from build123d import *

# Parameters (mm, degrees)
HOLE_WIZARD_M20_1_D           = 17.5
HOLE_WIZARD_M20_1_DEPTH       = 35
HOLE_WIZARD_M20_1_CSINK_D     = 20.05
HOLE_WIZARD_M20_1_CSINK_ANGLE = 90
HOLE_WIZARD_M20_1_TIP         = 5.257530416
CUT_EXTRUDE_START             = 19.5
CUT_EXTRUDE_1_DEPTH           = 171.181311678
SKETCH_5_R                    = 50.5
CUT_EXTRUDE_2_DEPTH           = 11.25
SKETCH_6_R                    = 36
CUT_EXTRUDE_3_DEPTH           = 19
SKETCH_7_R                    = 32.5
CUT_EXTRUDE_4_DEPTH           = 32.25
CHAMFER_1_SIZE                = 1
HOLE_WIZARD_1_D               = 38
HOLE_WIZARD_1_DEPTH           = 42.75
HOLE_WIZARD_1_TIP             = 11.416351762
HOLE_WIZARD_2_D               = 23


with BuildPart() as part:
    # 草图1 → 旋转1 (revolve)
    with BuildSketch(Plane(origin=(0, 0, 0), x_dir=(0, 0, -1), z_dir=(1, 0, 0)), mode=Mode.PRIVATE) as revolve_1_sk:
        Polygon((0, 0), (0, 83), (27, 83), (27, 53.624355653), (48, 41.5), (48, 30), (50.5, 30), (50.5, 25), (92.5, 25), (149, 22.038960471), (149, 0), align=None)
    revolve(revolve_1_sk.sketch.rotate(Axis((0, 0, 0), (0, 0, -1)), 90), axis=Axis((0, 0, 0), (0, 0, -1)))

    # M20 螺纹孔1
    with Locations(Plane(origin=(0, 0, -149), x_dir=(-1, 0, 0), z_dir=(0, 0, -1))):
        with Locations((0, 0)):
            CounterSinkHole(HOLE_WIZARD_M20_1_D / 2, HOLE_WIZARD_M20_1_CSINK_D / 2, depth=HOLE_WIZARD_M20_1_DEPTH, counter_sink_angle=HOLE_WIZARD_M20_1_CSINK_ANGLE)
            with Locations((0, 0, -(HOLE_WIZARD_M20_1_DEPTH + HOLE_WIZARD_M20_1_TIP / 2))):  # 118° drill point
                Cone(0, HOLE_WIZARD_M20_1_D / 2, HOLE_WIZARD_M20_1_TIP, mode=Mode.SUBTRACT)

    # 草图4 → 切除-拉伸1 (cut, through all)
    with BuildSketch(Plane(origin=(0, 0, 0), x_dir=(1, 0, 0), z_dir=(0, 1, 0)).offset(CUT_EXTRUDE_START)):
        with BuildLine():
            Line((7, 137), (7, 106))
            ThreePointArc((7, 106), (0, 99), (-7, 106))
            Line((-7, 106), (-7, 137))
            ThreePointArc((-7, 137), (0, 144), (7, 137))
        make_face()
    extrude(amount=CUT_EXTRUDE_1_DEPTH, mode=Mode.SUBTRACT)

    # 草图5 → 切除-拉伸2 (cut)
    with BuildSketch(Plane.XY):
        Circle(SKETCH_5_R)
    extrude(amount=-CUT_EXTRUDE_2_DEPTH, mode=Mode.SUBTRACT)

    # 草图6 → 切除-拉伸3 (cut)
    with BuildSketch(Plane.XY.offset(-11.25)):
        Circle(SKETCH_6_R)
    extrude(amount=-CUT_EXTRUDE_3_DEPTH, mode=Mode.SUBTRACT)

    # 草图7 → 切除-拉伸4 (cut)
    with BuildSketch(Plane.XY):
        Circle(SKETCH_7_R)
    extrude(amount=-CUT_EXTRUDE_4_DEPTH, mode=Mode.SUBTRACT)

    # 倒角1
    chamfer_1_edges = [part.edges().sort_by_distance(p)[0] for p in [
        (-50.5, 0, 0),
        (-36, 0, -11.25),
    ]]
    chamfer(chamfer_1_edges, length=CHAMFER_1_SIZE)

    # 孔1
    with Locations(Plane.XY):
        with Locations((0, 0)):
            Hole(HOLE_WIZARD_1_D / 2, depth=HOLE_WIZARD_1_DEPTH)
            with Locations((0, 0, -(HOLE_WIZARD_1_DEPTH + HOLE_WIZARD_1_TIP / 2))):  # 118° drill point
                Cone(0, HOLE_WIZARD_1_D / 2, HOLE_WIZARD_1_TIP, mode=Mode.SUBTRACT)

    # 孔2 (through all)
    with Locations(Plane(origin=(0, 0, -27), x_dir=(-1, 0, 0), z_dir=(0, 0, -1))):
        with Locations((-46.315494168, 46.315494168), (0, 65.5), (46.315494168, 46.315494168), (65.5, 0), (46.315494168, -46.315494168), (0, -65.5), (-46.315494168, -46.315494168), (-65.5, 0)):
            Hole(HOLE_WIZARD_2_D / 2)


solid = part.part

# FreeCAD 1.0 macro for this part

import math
import FreeCAD as App
import Part
import Sketcher
Q = App.Units.Quantity


def edges_at(feature, points):
    """Names of the edges that pass closest to the given points."""
    edges = feature.Shape.Edges
    near = lambda p: min(range(len(edges)), key=lambda i: edges[i].distToShape(Part.Vertex(*p))[0])
    return sorted({f"Edge{near(p) + 1}" for p in points})

doc = App.newDocument("Part")
params = doc.addObject("Spreadsheet::Sheet", "Params")
for row, (alias, value) in enumerate([
    ("sketch1_width", "83 mm"),
    ("sketch1_width2", "5 mm"),
    ("sketch1_height", "149 mm"),
    ("sketch1_height2", "42 mm"),
    ("sketch1_height3", "27 mm"),
    ("revolution_angle", "360 deg"),
    ("sketch2_diameter", "17.5 mm"),
    ("hole_diameter", "17.5 mm"),
    ("hole_depth", "35 mm"),
    ("hole_csink_diameter", "20.05 mm"),
    ("sketch3_radius", "7 mm"),
    ("sketch3_height", "31 mm"),
    ("sketch4_diameter", "101 mm"),
    ("pocket2_length", "11.25 mm"),
    ("sketch5_diameter", "72 mm"),
    ("pocket3_length", "19 mm"),
    ("sketch6_diameter", "65 mm"),
    ("pocket4_length", "32.25 mm"),
    ("chamfer_size", "1 mm"),
    ("sketch7_diameter", "38 mm"),
    ("hole2_diameter", "38 mm"),
    ("hole2_depth", "42.75 mm"),
    ("sketch8_diameter", "23 mm"),
    ("hole3_diameter", "23 mm"),
], start=1):
    params.set(f"A{row}", alias)
    params.set(f"B{row}", "=" + value)
    params.setAlias(f"B{row}", alias)

body = doc.addObject("PartDesign::Body", "Body")

# Sketch on YZ plane
sketch1 = doc.addObject("Sketcher::SketchObject", "Sketch")
body.addObject(sketch1)
sketch1.AttachmentSupport = (doc.YZ_Plane, [""])
sketch1.MapMode = "FlatFace"
sketch1.addGeometry([
    Part.LineSegment(App.Vector(83, 0, 0), App.Vector(0, 0, 0)),  # 0
    Part.LineSegment(App.Vector(0, 0, 0), App.Vector(0, -149, 0)),  # 1
    Part.LineSegment(App.Vector(0, -149, 0), App.Vector(22, -149, 0)),  # 2
    Part.LineSegment(App.Vector(22, -149, 0), App.Vector(25, -92.5, 0)),  # 3
    Part.LineSegment(App.Vector(25, -92.5, 0), App.Vector(25, -50.5, 0)),  # 4
    Part.LineSegment(App.Vector(25, -50.5, 0), App.Vector(30, -50.5, 0)),  # 5
    Part.LineSegment(App.Vector(30, -50.5, 0), App.Vector(30, -48, 0)),  # 6
    Part.LineSegment(App.Vector(30, -48, 0), App.Vector(41.5, -48, 0)),  # 7
    Part.LineSegment(App.Vector(41.5, -48, 0), App.Vector(53.6, -27, 0)),  # 8
    Part.LineSegment(App.Vector(53.6, -27, 0), App.Vector(83, -27, 0)),  # 9
    Part.LineSegment(App.Vector(83, -27, 0), App.Vector(83, 0, 0)),  # 10
], False)
sketch1.addConstraint([
    Sketcher.Constraint("Coincident", 0, 2, 1, 1),
    Sketcher.Constraint("Coincident", 1, 2, 2, 1),
    Sketcher.Constraint("Coincident", 2, 2, 3, 1),
    Sketcher.Constraint("Coincident", 3, 2, 4, 1),
    Sketcher.Constraint("Coincident", 4, 2, 5, 1),
    Sketcher.Constraint("Coincident", 5, 2, 6, 1),
    Sketcher.Constraint("Coincident", 6, 2, 7, 1),
    Sketcher.Constraint("Coincident", 7, 2, 8, 1),
    Sketcher.Constraint("Coincident", 8, 2, 9, 1),
    Sketcher.Constraint("Coincident", 9, 2, 10, 1),
    Sketcher.Constraint("Coincident", 10, 2, 0, 1),
    Sketcher.Constraint("Horizontal", 0),
    Sketcher.Constraint("Vertical", 1),
    Sketcher.Constraint("Horizontal", 2),
    Sketcher.Constraint("Vertical", 4),
    Sketcher.Constraint("Horizontal", 5),
    Sketcher.Constraint("Vertical", 6),
    Sketcher.Constraint("Horizontal", 7),
    Sketcher.Constraint("Horizontal", 9),
    Sketcher.Constraint("Vertical", 10),
    Sketcher.Constraint("Coincident", 0, 2, -1, 1),
    Sketcher.Constraint("DistanceX", 0, 2, 0, 1, 83.0),
    Sketcher.Constraint("DistanceX", 5, 1, 5, 2, 5.0),
    Sketcher.Constraint("DistanceY", 1, 2, 1, 1, 149.0),
    Sketcher.Constraint("DistanceY", 4, 1, 4, 2, 42.0),
    Sketcher.Constraint("DistanceY", 10, 1, 10, 2, 27.0),
    Sketcher.Constraint("Angle", 3, Q("87 deg")),
    Sketcher.Constraint("Angle", 8, Q("60 deg")),
    Sketcher.Constraint("DistanceX", 7, 1, 7, 2, 11.5),
    Sketcher.Constraint("DistanceY", 6, 1, 6, 2, 2.5),
    Sketcher.Constraint("DistanceX", -1, 1, 3, 2, 25.0),
    Sketcher.Constraint("DistanceY", 6, 2, -1, 1, 48.0),
])
sketch1.setExpression("Constraints[21]", "Params.sketch1_width")
sketch1.setExpression("Constraints[22]", "Params.sketch1_width2")
sketch1.setExpression("Constraints[23]", "Params.sketch1_height")
sketch1.setExpression("Constraints[24]", "Params.sketch1_height2")
sketch1.setExpression("Constraints[25]", "Params.sketch1_height3")
revolution = doc.addObject("PartDesign::Revolution", "Revolution")
body.addObject(revolution)
revolution.Profile = sketch1
revolution.ReferenceAxis = (sketch1, ["V_Axis"])
revolution.setExpression("Angle", "Params.revolution_angle")

# Sketch on XY plane
sketch2 = doc.addObject("Sketcher::SketchObject", "Sketch001")
body.addObject(sketch2)
sketch2.AttachmentSupport = (doc.XY_Plane, [""])
sketch2.MapMode = "FlatFace"
sketch2.AttachmentOffset = App.Placement(App.Vector(0, 0, -149), App.Rotation())
sketch2.addGeometry(Part.Circle(App.Vector(0, 0, 0), App.Vector(0, 0, 1), 9), False)
sketch2.addConstraint([
    Sketcher.Constraint("Coincident", 0, 3, -1, 1),
    Sketcher.Constraint("Diameter", 0, 17.5),
])
sketch2.setExpression("Constraints[1]", "Params.sketch2_diameter")
doc.recompute()
hole = doc.addObject("PartDesign::Hole", "Hole")
body.addObject(hole)
hole.Profile = sketch2
hole.ThreadType = "None"
hole.setExpression("Diameter", "Params.hole_diameter")
hole.DepthType = "Dimension"
hole.setExpression("Depth", "Params.hole_depth")
hole.DrillPoint = "Angled"
hole.DrillPointAngle = 118
hole.HoleCutType = "Countersink"
hole.setExpression("HoleCutDiameter", "Params.hole_csink_diameter")
hole.HoleCutCountersinkAngle = 90
hole.Reversed = True

# Sketch on XZ plane
sketch3 = doc.addObject("Sketcher::SketchObject", "Sketch002")
body.addObject(sketch3)
sketch3.AttachmentSupport = (doc.XZ_Plane, [""])
sketch3.MapMode = "FlatFace"
sketch3.AttachmentOffset = App.Placement(App.Vector(0, 0, -19.5), App.Rotation())
sketch3.addGeometry([
    Part.LineSegment(App.Vector(7, -106, 0), App.Vector(7, -137, 0)),
    Part.ArcOfCircle(Part.Circle(App.Vector(0, -137, 0), App.Vector(0, 0, 1), 7), math.radians(180), math.radians(360)),
    Part.LineSegment(App.Vector(-7, -137, 0), App.Vector(-7, -106, 0)),
    Part.ArcOfCircle(Part.Circle(App.Vector(0, -106, 0), App.Vector(0, 0, 1), 7), math.radians(0), math.radians(180)),
], False)
sketch3.addConstraint([
    Sketcher.Constraint("Tangent", 0, 2, 1, 2),
    Sketcher.Constraint("Tangent", 1, 1, 2, 1),
    Sketcher.Constraint("Tangent", 2, 2, 3, 2),
    Sketcher.Constraint("Tangent", 3, 1, 0, 1),
    Sketcher.Constraint("Vertical", 0),
    Sketcher.Constraint("Vertical", 2),
    Sketcher.Constraint("PointOnObject", 1, 3, -2),
    Sketcher.Constraint("Radius", 1, 7.0),
    Sketcher.Constraint("DistanceY", 0, 2, 0, 1, 31.0),
    Sketcher.Constraint("DistanceY", 1, 3, -1, 1, 137.0),
])
sketch3.setExpression("Constraints[7]", "Params.sketch3_radius")
sketch3.setExpression("Constraints[8]", "Params.sketch3_height")
pocket1 = doc.addObject("PartDesign::Pocket", "Pocket")
body.addObject(pocket1)
pocket1.Profile = sketch3
pocket1.Type = "ThroughAll"

# Sketch on XY plane
sketch4 = doc.addObject("Sketcher::SketchObject", "Sketch003")
body.addObject(sketch4)
sketch4.AttachmentSupport = (doc.XY_Plane, [""])
sketch4.MapMode = "FlatFace"
sketch4.addGeometry(Part.Circle(App.Vector(0, 0, 0), App.Vector(0, 0, 1), 50), False)
sketch4.addConstraint([
    Sketcher.Constraint("Coincident", 0, 3, -1, 1),
    Sketcher.Constraint("Diameter", 0, 101.0),
])
sketch4.setExpression("Constraints[1]", "Params.sketch4_diameter")
pocket2 = doc.addObject("PartDesign::Pocket", "Pocket001")
body.addObject(pocket2)
pocket2.Profile = sketch4
pocket2.setExpression("Length", "Params.pocket2_length")

# Sketch on XY plane
sketch5 = doc.addObject("Sketcher::SketchObject", "Sketch004")
body.addObject(sketch5)
sketch5.AttachmentSupport = (doc.XY_Plane, [""])
sketch5.MapMode = "FlatFace"
sketch5.AttachmentOffset = App.Placement(App.Vector(0, 0, -11.25), App.Rotation())
sketch5.addGeometry(Part.Circle(App.Vector(0, 0, 0), App.Vector(0, 0, 1), 36), False)
sketch5.addConstraint([
    Sketcher.Constraint("Coincident", 0, 3, -1, 1),
    Sketcher.Constraint("Diameter", 0, 72.0),
])
sketch5.setExpression("Constraints[1]", "Params.sketch5_diameter")
pocket3 = doc.addObject("PartDesign::Pocket", "Pocket002")
body.addObject(pocket3)
pocket3.Profile = sketch5
pocket3.setExpression("Length", "Params.pocket3_length")

# Sketch on XY plane
sketch6 = doc.addObject("Sketcher::SketchObject", "Sketch005")
body.addObject(sketch6)
sketch6.AttachmentSupport = (doc.XY_Plane, [""])
sketch6.MapMode = "FlatFace"
sketch6.addGeometry(Part.Circle(App.Vector(0, 0, 0), App.Vector(0, 0, 1), 32), False)
sketch6.addConstraint([
    Sketcher.Constraint("Coincident", 0, 3, -1, 1),
    Sketcher.Constraint("Diameter", 0, 65.0),
])
sketch6.setExpression("Constraints[1]", "Params.sketch6_diameter")
pocket4 = doc.addObject("PartDesign::Pocket", "Pocket003")
body.addObject(pocket4)
pocket4.Profile = sketch6
pocket4.setExpression("Length", "Params.pocket4_length")
doc.recompute()

chamfer = doc.addObject("PartDesign::Chamfer", "Chamfer")
body.addObject(chamfer)
chamfer.Base = (pocket4, edges_at(pocket4, [(-50.5, 0, 0), (-36, 0, -11.25)]))
chamfer.setExpression("Size", "Params.chamfer_size")

# Sketch on XY plane
sketch7 = doc.addObject("Sketcher::SketchObject", "Sketch006")
body.addObject(sketch7)
sketch7.AttachmentSupport = (doc.XY_Plane, [""])
sketch7.MapMode = "FlatFace"
sketch7.addGeometry(Part.Circle(App.Vector(0, 0, 0), App.Vector(0, 0, 1), 19), False)
sketch7.addConstraint([
    Sketcher.Constraint("Coincident", 0, 3, -1, 1),
    Sketcher.Constraint("Diameter", 0, 38.0),
])
sketch7.setExpression("Constraints[1]", "Params.sketch7_diameter")
doc.recompute()
hole2 = doc.addObject("PartDesign::Hole", "Hole001")
body.addObject(hole2)
hole2.Profile = sketch7
hole2.ThreadType = "None"
hole2.setExpression("Diameter", "Params.hole2_diameter")
hole2.DepthType = "Dimension"
hole2.setExpression("Depth", "Params.hole2_depth")
hole2.DrillPoint = "Angled"
hole2.DrillPointAngle = 118

# Sketch on XY plane
sketch8 = doc.addObject("Sketcher::SketchObject", "Sketch007")
body.addObject(sketch8)
sketch8.AttachmentSupport = (doc.XY_Plane, [""])
sketch8.MapMode = "FlatFace"
sketch8.AttachmentOffset = App.Placement(App.Vector(0, 0, -27), App.Rotation())
sketch8.addGeometry([
    Part.Circle(App.Vector(46, 46, 0), App.Vector(0, 0, 1), 12),  # 0
    Part.Circle(App.Vector(0, 66, 0), App.Vector(0, 0, 1), 12),  # 1
    Part.Circle(App.Vector(-46, 46, 0), App.Vector(0, 0, 1), 12),  # 2
    Part.Circle(App.Vector(-66, 0, 0), App.Vector(0, 0, 1), 12),  # 3
    Part.Circle(App.Vector(-46, -46, 0), App.Vector(0, 0, 1), 12),  # 4
    Part.Circle(App.Vector(0, -66, 0), App.Vector(0, 0, 1), 12),  # 5
    Part.Circle(App.Vector(46, -46, 0), App.Vector(0, 0, 1), 12),  # 6
    Part.Circle(App.Vector(66, 0, 0), App.Vector(0, 0, 1), 12),  # 7
], False)
sketch8.addConstraint([
    Sketcher.Constraint("Equal", 0, 1),
    Sketcher.Constraint("Equal", 1, 2),
    Sketcher.Constraint("Equal", 2, 3),
    Sketcher.Constraint("Equal", 3, 4),
    Sketcher.Constraint("Equal", 4, 5),
    Sketcher.Constraint("Equal", 5, 6),
    Sketcher.Constraint("Equal", 6, 7),
    Sketcher.Constraint("Symmetric", 0, 3, 4, 3, -1, 1),
    Sketcher.Constraint("Symmetric", 1, 3, 5, 3, -1, 1),
    Sketcher.Constraint("Symmetric", 2, 3, 6, 3, -1, 1),
    Sketcher.Constraint("Symmetric", 3, 3, 7, 3, -1, 1),
    Sketcher.Constraint("Symmetric", 0, 3, 2, 3, -2),
    Sketcher.Constraint("PointOnObject", 1, 3, -2),
    Sketcher.Constraint("PointOnObject", 3, 3, -1),
    Sketcher.Constraint("Diameter", 0, 23.0),
    Sketcher.Constraint("DistanceY", 5, 3, 1, 3, 131.0),
    Sketcher.Constraint("DistanceX", 3, 3, -1, 1, 65.5),
    Sketcher.Constraint("DistanceX", 2, 3, 0, 3, 92.630988),
    Sketcher.Constraint("DistanceY", 4, 3, 2, 3, 92.630988),
])
sketch8.setExpression("Constraints[14]", "Params.sketch8_diameter")
doc.recompute()
hole3 = doc.addObject("PartDesign::Hole", "Hole002")
body.addObject(hole3)
hole3.Profile = sketch8
hole3.ThreadType = "None"
hole3.setExpression("Diameter", "Params.hole3_diameter")
hole3.DepthType = "ThroughAll"
hole3.Reversed = True

doc.recompute()
